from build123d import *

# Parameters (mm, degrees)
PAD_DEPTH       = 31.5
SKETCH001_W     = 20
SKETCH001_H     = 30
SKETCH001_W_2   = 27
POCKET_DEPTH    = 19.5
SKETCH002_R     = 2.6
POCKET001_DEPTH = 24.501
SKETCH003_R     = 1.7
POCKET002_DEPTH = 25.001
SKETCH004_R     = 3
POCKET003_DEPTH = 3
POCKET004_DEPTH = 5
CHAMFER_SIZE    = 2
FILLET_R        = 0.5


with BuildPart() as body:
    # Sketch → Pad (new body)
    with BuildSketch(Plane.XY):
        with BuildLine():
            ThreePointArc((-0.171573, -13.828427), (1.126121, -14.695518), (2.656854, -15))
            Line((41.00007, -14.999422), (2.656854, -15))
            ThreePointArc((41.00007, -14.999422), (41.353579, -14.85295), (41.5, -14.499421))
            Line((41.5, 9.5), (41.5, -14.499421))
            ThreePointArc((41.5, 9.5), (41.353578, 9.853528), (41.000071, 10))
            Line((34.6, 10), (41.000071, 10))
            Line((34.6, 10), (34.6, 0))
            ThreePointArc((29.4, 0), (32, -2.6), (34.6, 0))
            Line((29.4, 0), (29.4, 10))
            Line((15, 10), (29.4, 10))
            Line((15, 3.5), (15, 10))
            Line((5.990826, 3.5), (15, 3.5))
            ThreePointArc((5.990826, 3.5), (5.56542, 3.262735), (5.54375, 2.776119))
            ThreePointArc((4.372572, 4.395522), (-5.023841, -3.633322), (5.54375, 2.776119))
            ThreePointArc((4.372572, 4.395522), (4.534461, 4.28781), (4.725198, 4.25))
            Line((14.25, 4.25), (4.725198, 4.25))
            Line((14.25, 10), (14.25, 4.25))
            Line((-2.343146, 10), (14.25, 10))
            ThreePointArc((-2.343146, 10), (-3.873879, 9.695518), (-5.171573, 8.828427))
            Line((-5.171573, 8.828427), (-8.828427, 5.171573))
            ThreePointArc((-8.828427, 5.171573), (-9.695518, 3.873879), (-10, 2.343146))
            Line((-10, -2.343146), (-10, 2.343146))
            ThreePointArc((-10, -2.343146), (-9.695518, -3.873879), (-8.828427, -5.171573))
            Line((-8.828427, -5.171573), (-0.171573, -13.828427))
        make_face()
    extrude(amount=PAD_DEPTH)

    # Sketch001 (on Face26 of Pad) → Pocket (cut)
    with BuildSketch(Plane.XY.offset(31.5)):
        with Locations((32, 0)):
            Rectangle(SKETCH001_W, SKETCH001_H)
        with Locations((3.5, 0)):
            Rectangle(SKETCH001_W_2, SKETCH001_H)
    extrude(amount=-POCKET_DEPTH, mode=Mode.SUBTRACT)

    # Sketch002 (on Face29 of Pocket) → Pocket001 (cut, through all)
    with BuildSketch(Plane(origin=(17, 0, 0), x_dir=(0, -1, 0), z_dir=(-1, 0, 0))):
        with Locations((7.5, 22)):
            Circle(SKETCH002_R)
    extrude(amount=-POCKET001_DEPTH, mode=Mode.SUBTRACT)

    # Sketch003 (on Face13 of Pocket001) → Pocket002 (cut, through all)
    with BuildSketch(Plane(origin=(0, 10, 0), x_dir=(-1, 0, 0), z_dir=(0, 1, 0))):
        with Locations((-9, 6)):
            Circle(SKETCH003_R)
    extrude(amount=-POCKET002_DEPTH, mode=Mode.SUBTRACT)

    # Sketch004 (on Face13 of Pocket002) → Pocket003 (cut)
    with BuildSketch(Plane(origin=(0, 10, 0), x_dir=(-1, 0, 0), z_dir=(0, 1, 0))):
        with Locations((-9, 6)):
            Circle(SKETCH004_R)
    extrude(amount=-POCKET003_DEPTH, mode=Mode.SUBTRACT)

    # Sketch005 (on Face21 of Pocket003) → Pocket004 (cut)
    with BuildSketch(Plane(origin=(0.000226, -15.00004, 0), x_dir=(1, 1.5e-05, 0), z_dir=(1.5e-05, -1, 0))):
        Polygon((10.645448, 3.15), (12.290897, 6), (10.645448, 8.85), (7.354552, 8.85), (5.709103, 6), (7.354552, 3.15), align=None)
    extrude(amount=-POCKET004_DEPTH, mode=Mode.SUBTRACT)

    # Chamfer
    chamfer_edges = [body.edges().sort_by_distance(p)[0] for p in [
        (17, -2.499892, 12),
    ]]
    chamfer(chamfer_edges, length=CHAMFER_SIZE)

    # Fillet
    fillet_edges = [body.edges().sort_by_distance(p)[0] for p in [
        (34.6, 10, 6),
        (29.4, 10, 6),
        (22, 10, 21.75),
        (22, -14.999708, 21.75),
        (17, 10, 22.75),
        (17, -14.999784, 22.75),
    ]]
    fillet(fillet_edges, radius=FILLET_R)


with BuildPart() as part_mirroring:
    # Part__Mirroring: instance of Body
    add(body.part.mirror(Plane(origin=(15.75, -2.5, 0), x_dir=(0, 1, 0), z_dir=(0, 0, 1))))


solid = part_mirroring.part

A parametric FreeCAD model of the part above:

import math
import FreeCAD as App
import Part
import Sketcher
from FreeCAD import Vector
Q = App.Units.Quantity


def edges_at(feature, points):
    """Names of the edges that pass closest to the given points."""
    edges = feature.Shape.Edges
    near = lambda p: min(range(len(edges)), key=lambda i: edges[i].distToShape(Part.Vertex(*p))[0])
    return sorted({f"Edge{near(p) + 1}" for p in points})

doc = App.newDocument("Part")
body = doc.addObject("PartDesign::Body", "Body")

sketch1 = doc.addObject("Sketcher::SketchObject", "Sketch")
body.addObject(sketch1)
sketch1.AttachmentSupport = (doc.XY_Plane, [""])
sketch1.MapMode = "FlatFace"
sketch1.addGeometry(Part.ArcOfCircle(Part.Circle(Vector(2.66, -11, 0), Vector(0, 0, 1), 4), math.radians(-135), math.radians(-90)), False)
sketch1.addGeometry(Part.LineSegment(Vector(2.66, -15, 0), Vector(41, -15, 0)), False)
sketch1.addGeometry(Part.ArcOfCircle(Part.Circle(Vector(41, -14.5, 0), Vector(0, 0, 1), 0.5), math.radians(-90), math.radians(0)), False)
sketch1.addGeometry(Part.LineSegment(Vector(41.5, -14.5, 0), Vector(41.5, 9.5, 0)), False)
sketch1.addGeometry(Part.ArcOfCircle(Part.Circle(Vector(41, 9.5, 0), Vector(0, 0, 1), 0.5), math.radians(0), math.radians(90)), False)
sketch1.addGeometry(Part.LineSegment(Vector(41, 10, 0), Vector(34.6, 10, 0)), False)
sketch1.addGeometry(Part.LineSegment(Vector(34.6, 10, 0), Vector(34.6, 0, 0)), False)
sketch1.addGeometry(Part.ArcOfCircle(Part.Circle(Vector(32, 0, 0), Vector(0, 0, 1), 2.6), math.radians(180), math.radians(360)), False)
sketch1.addGeometry(Part.LineSegment(Vector(29.4, 0, 0), Vector(29.4, 10, 0)), False)
sketch1.addGeometry(Part.LineSegment(Vector(29.4, 10, 0), Vector(15, 10, 0)), False)
sketch1.addGeometry(Part.LineSegment(Vector(15, 10, 0), Vector(15, 3.5, 0)), False)
sketch1.addGeometry(Part.LineSegment(Vector(15, 3.5, 0), Vector(5.99, 3.5, 0)), False)
sketch1.addGeometry(Part.ArcOfCircle(Part.Circle(Vector(5.99, 3, 0), Vector(0, 0, 1), 0.5), math.radians(90), math.radians(207)), False)
sketch1.addGeometry(Part.ArcOfCircle(Part.Circle(Vector(0, 0, 0), Vector(0, 0, 1), 6.2), math.radians(45), math.radians(387)), False)
sketch1.addGeometry(Part.ArcOfCircle(Part.Circle(Vector(4.73, 4.75, 0), Vector(0, 0, 1), 0.5), math.radians(-135), math.radians(-90)), False)
sketch1.addGeometry(Part.LineSegment(Vector(4.73, 4.25, 0), Vector(14.25, 4.25, 0)), False)
sketch1.addGeometry(Part.LineSegment(Vector(14.25, 4.25, 0), Vector(14.25, 10, 0)), False)
sketch1.addGeometry(Part.LineSegment(Vector(14.25, 10, 0), Vector(-2.34, 10, 0)), False)
sketch1.addGeometry(Part.ArcOfCircle(Part.Circle(Vector(-2.34, 6, 0), Vector(0, 0, 1), 4), math.radians(90), math.radians(135)), False)
sketch1.addGeometry(Part.LineSegment(Vector(-5.17, 8.83, 0), Vector(-8.83, 5.17, 0)), False)
sketch1.addGeometry(Part.ArcOfCircle(Part.Circle(Vector(-6, 2.34, 0), Vector(0, 0, 1), 4), math.radians(135), math.radians(180)), False)
sketch1.addGeometry(Part.LineSegment(Vector(-10, 2.34, 0), Vector(-10, -2.34, 0)), False)
sketch1.addGeometry(Part.ArcOfCircle(Part.Circle(Vector(-6, -2.34, 0), Vector(0, 0, 1), 4), math.radians(-180), math.radians(-135)), False)
sketch1.addGeometry(Part.LineSegment(Vector(-8.83, -5.17, 0), Vector(-0.17, -13.83, 0)), False)
sketch1.addConstraint(Sketcher.Constraint("Coincident", 0, 2, 1, 1))
sketch1.addConstraint(Sketcher.Constraint("Coincident", 1, 2, 2, 1))
sketch1.addConstraint(Sketcher.Constraint("Coincident", 2, 2, 3, 1))
sketch1.addConstraint(Sketcher.Constraint("Coincident", 3, 2, 4, 1))
sketch1.addConstraint(Sketcher.Constraint("Coincident", 4, 2, 5, 1))
sketch1.addConstraint(Sketcher.Constraint("Coincident", 5, 2, 6, 1))
sketch1.addConstraint(Sketcher.Constraint("Tangent", 6, 2, 7, 2))
sketch1.addConstraint(Sketcher.Constraint("Tangent", 7, 1, 8, 1))
sketch1.addConstraint(Sketcher.Constraint("Coincident", 8, 2, 9, 1))
sketch1.addConstraint(Sketcher.Constraint("Coincident", 9, 2, 10, 1))
sketch1.addConstraint(Sketcher.Constraint("Coincident", 10, 2, 11, 1))
sketch1.addConstraint(Sketcher.Constraint("Tangent", 11, 2, 12, 1))
sketch1.addConstraint(Sketcher.Constraint("Tangent", 12, 2, 13, 2))
sketch1.addConstraint(Sketcher.Constraint("Coincident", 13, 1, 14, 1))
sketch1.addConstraint(Sketcher.Constraint("Coincident", 14, 2, 15, 1))
sketch1.addConstraint(Sketcher.Constraint("Coincident", 15, 2, 16, 1))
sketch1.addConstraint(Sketcher.Constraint("Coincident", 16, 2, 17, 1))
sketch1.addConstraint(Sketcher.Constraint("Tangent", 17, 2, 18, 1))
sketch1.addConstraint(Sketcher.Constraint("Tangent", 18, 2, 19, 1))
sketch1.addConstraint(Sketcher.Constraint("Tangent", 19, 2, 20, 1))
sketch1.addConstraint(Sketcher.Constraint("Tangent", 20, 2, 21, 1))
sketch1.addConstraint(Sketcher.Constraint("Tangent", 21, 2, 22, 1))
sketch1.addConstraint(Sketcher.Constraint("Tangent", 22, 2, 23, 1))
sketch1.addConstraint(Sketcher.Constraint("Tangent", 23, 2, 0, 1))
sketch1.addConstraint(Sketcher.Constraint("Vertical", 3))
sketch1.addConstraint(Sketcher.Constraint("Horizontal", 5))
sketch1.addConstraint(Sketcher.Constraint("Vertical", 6))
sketch1.addConstraint(Sketcher.Constraint("Vertical", 8))
sketch1.addConstraint(Sketcher.Constraint("Horizontal", 9))
sketch1.addConstraint(Sketcher.Constraint("Vertical", 10))
sketch1.addConstraint(Sketcher.Constraint("Horizontal", 11))
sketch1.addConstraint(Sketcher.Constraint("Horizontal", 15))
sketch1.addConstraint(Sketcher.Constraint("Vertical", 16))
sketch1.addConstraint(Sketcher.Constraint("Horizontal", 17))
sketch1.addConstraint(Sketcher.Constraint("Vertical", 21))
sketch1.addConstraint(Sketcher.Constraint("Coincident", 13, 3, -1, 1))
sketch1.addConstraint(Sketcher.Constraint("Equal", 2, 4))
sketch1.addConstraint(Sketcher.Constraint("Equal", 4, 12))
sketch1.addConstraint(Sketcher.Constraint("Equal", 0, 18))
sketch1.addConstraint(Sketcher.Constraint("Equal", 18, 20))
sketch1.addConstraint(Sketcher.Constraint("Equal", 20, 22))
sketch1.addConstraint(Sketcher.Constraint("Symmetric", 19, 2, 22, 2, -1))
sketch1.addConstraint(Sketcher.Constraint("PointOnObject", 7, 3, -1))
sketch1.addConstraint(Sketcher.Constraint("Perpendicular", 19, 23))
sketch1.addConstraint(Sketcher.Constraint("Horizontal", 4, 3, 3, 2))
sketch1.addConstraint(Sketcher.Constraint("Horizontal", 5, 2, 8, 2))
sketch1.addConstraint(Sketcher.Constraint("Horizontal", 9, 2, 16, 2))
sketch1.addConstraint(Sketcher.Constraint("Vertical", 1, 2, 4, 2))
sketch1.addConstraint(Sketcher.Constraint("Radius", 2, 0.5))
sketch1.addConstraint(Sketcher.Constraint("Radius", 7, 2.6))
sketch1.addConstraint(Sketcher.Constraint("Radius", 13, 6.2))
sketch1.addConstraint(Sketcher.Constraint("DistanceY", 6, 2, 6, 1, 10.0))
sketch1.addConstraint(Sketcher.Constraint("DistanceX", 9, 2, 9, 1, 14.4))
sketch1.addConstraint(Sketcher.Constraint("DistanceY", 10, 2, 10, 1, 6.5))
sketch1.addConstraint(Sketcher.Constraint("DistanceX", -1, 1, 2, 3, 41.0))
sketch1.addConstraint(Sketcher.Constraint("DistanceX", -1, 1, 7, 3, 32.0))
sketch1.addConstraint(Sketcher.Constraint("DistanceY", 0, 2, -1, 1, 15.0))
sketch1.addConstraint(Sketcher.Constraint("DistanceX", 20, 2, -1, 1, 10.0))
sketch1.addConstraint(Sketcher.Constraint("DistanceY", 16, 1, 16, 2, 5.75))
sketch1.addConstraint(Sketcher.Constraint("DistanceY", 1, 2, 2, 2, 0.500001))
sketch1.addConstraint(Sketcher.Constraint("DistanceX", -1, 1, 15, 2, 14.25))
sketch1.addConstraint(Sketcher.Constraint("DistanceY", 14, 3, 18, 3, 1.25))
sketch1.addConstraint(Sketcher.Constraint("Radius", 0, 4.000004))
sketch1.addConstraint(Sketcher.Constraint("DistanceX", 5, 2, 5, 1, 6.400071))
sketch1.addConstraint(Sketcher.Constraint("DistanceY", 3, 1, 3, 2, 23.999421))
sketch1.addConstraint(Sketcher.Constraint("Distance", 23, 12.24264))
sketch1.addConstraint(Sketcher.Constraint("DistanceX", 15, 1, 15, 2, 9.524802))
sketch1.addConstraint(Sketcher.Constraint("DistanceX", 22, 3, 0, 2, 8.65685))
sketch1.addConstraint(Sketcher.Constraint("DistanceX", 13, 1, 12, 2, 1.171178))
pad1 = doc.addObject("PartDesign::Pad", "Pad")
body.addObject(pad1)
pad1.Profile = sketch1
pad1.Length = 31.5

sketch2 = doc.addObject("Sketcher::SketchObject", "Sketch001")
body.addObject(sketch2)
sketch2.AttachmentSupport = (doc.XY_Plane, [""])
sketch2.MapMode = "FlatFace"
sketch2.AttachmentOffset = App.Placement(Vector(0, 0, 31.5), App.Rotation())
sketch2.addGeometry(Part.LineSegment(Vector(22, 15, 0), Vector(22, -15, 0)), False)
sketch2.addGeometry(Part.LineSegment(Vector(22, -15, 0), Vector(42, -15, 0)), False)
sketch2.addGeometry(Part.LineSegment(Vector(42, -15, 0), Vector(42, 15, 0)), False)
sketch2.addGeometry(Part.LineSegment(Vector(42, 15, 0), Vector(22, 15, 0)), False)
sketch2.addGeometry(Part.LineSegment(Vector(-10, 15, 0), Vector(-10, -15, 0)), False)
sketch2.addGeometry(Part.LineSegment(Vector(-10, -15, 0), Vector(17, -15, 0)), False)
sketch2.addGeometry(Part.LineSegment(Vector(17, -15, 0), Vector(17, 15, 0)), False)
sketch2.addGeometry(Part.LineSegment(Vector(17, 15, 0), Vector(-10, 15, 0)), False)
sketch2.addConstraint(Sketcher.Constraint("Coincident", 0, 2, 1, 1))
sketch2.addConstraint(Sketcher.Constraint("Coincident", 1, 2, 2, 1))
sketch2.addConstraint(Sketcher.Constraint("Coincident", 2, 2, 3, 1))
sketch2.addConstraint(Sketcher.Constraint("Coincident", 3, 2, 0, 1))
sketch2.addConstraint(Sketcher.Constraint("Coincident", 4, 2, 5, 1))
sketch2.addConstraint(Sketcher.Constraint("Coincident", 5, 2, 6, 1))
sketch2.addConstraint(Sketcher.Constraint("Coincident", 6, 2, 7, 1))
sketch2.addConstraint(Sketcher.Constraint("Coincident", 7, 2, 4, 1))
sketch2.addConstraint(Sketcher.Constraint("Vertical", 0))
sketch2.addConstraint(Sketcher.Constraint("Horizontal", 1))
sketch2.addConstraint(Sketcher.Constraint("Vertical", 2))
sketch2.addConstraint(Sketcher.Constraint("Horizontal", 3))
sketch2.addConstraint(Sketcher.Constraint("Vertical", 4))
sketch2.addConstraint(Sketcher.Constraint("Horizontal", 5))
sketch2.addConstraint(Sketcher.Constraint("Vertical", 6))
sketch2.addConstraint(Sketcher.Constraint("Horizontal", 7))
sketch2.addConstraint(Sketcher.Constraint("Horizontal", 1, 2, 4, 2))
sketch2.addConstraint(Sketcher.Constraint("Horizontal", 3, 2, 6, 2))
sketch2.addConstraint(Sketcher.Constraint("DistanceX", 1, 1, 1, 2, 20.0))
sketch2.addConstraint(Sketcher.Constraint("DistanceX", 5, 1, 5, 2, 27.0))
sketch2.addConstraint(Sketcher.Constraint("DistanceY", 0, 2, 0, 1, 30.0))
sketch2.addConstraint(Sketcher.Constraint("DistanceX", -1, 1, 0, 2, 22.0))
sketch2.addConstraint(Sketcher.Constraint("DistanceY", 0, 2, -1, 1, 15.0))
sketch2.addConstraint(Sketcher.Constraint("DistanceX", 4, 2, -1, 1, 10.0))
pocket1 = doc.addObject("PartDesign::Pocket", "Pocket")
body.addObject(pocket1)
pocket1.Profile = sketch2
pocket1.Length = 19.5

sketch3 = doc.addObject("Sketcher::SketchObject", "Sketch002")
body.addObject(sketch3)
sketch3.AttachmentSupport = (doc.YZ_Plane, [""])
sketch3.MapMode = "FlatFace"
sketch3.AttachmentOffset = App.Placement(Vector(0, 0, 17), App.Rotation())
sketch3.addGeometry(Part.Circle(Vector(-7.5, 22, 0), Vector(0, 0, 1), 2.6), False)
sketch3.addConstraint(Sketcher.Constraint("Diameter", 0, 5.2))
sketch3.addConstraint(Sketcher.Constraint("DistanceY", -1, 1, 0, 3, 22.0))
sketch3.addConstraint(Sketcher.Constraint("DistanceX", 0, 3, -1, 1, 7.5))
pocket2 = doc.addObject("PartDesign::Pocket", "Pocket001")
body.addObject(pocket2)
pocket2.Profile = sketch3
pocket2.Type = "ThroughAll"
pocket2.Reversed = True

sketch4 = doc.addObject("Sketcher::SketchObject", "Sketch003")
body.addObject(sketch4)
sketch4.AttachmentSupport = (doc.XZ_Plane, [""])
sketch4.MapMode = "FlatFace"
sketch4.AttachmentOffset = App.Placement(Vector(0, 0, -10), App.Rotation())
sketch4.addGeometry(Part.Circle(Vector(9, 6, 0), Vector(0, 0, 1), 1.7), False)
sketch4.addConstraint(Sketcher.Constraint("Diameter", 0, 3.4))
sketch4.addConstraint(Sketcher.Constraint("DistanceX", -1, 1, 0, 3, 9.0))
sketch4.addConstraint(Sketcher.Constraint("DistanceY", -1, 1, 0, 3, 6.0))
pocket3 = doc.addObject("PartDesign::Pocket", "Pocket002")
body.addObject(pocket3)
pocket3.Profile = sketch4
pocket3.Type = "ThroughAll"
pocket3.Reversed = True

sketch5 = doc.addObject("Sketcher::SketchObject", "Sketch004")
body.addObject(sketch5)
sketch5.AttachmentSupport = (doc.XZ_Plane, [""])
sketch5.MapMode = "FlatFace"
sketch5.AttachmentOffset = App.Placement(Vector(0, 0, -10), App.Rotation())
sketch5.addGeometry(Part.Circle(Vector(9, 6, 0), Vector(0, 0, 1), 3), False)
sketch5.addConstraint(Sketcher.Constraint("Diameter", 0, 6.0))
sketch5.addConstraint(Sketcher.Constraint("DistanceX", -1, 1, 0, 3, 9.0))
sketch5.addConstraint(Sketcher.Constraint("DistanceY", -1, 1, 0, 3, 6.0))
pocket4 = doc.addObject("PartDesign::Pocket", "Pocket003")
body.addObject(pocket4)
pocket4.Profile = sketch5
pocket4.Length = 3
pocket4.Reversed = True

sketch6 = doc.addObject("Sketcher::SketchObject", "Sketch005")
body.addObject(sketch6)
sketch6.AttachmentSupport = (doc.XZ_Plane, [""])
sketch6.MapMode = "FlatFace"
sketch6.AttachmentOffset = App.Placement(Vector(0, 0, 15.00004), App.Rotation())
sketch6.addGeometry(Part.LineSegment(Vector(10.6, 3.2, 0), Vector(12.3, 6, 0)), False)
sketch6.addGeometry(Part.LineSegment(Vector(12.3, 6, 0), Vector(10.6, 8.9, 0)), False)
sketch6.addGeometry(Part.LineSegment(Vector(10.6, 8.9, 0), Vector(7.4, 8.9, 0)), False)
sketch6.addGeometry(Part.LineSegment(Vector(7.4, 8.9, 0), Vector(5.7, 6, 0)), False)
sketch6.addGeometry(Part.LineSegment(Vector(5.7, 6, 0), Vector(7.4, 3.2, 0)), False)
sketch6.addGeometry(Part.LineSegment(Vector(7.4, 3.2, 0), Vector(10.6, 3.2, 0)), False)
sketch6.addConstraint(Sketcher.Constraint("Coincident", 0, 2, 1, 1))
sketch6.addConstraint(Sketcher.Constraint("Coincident", 1, 2, 2, 1))
sketch6.addConstraint(Sketcher.Constraint("Coincident", 2, 2, 3, 1))
sketch6.addConstraint(Sketcher.Constraint("Coincident", 3, 2, 4, 1))
sketch6.addConstraint(Sketcher.Constraint("Coincident", 4, 2, 5, 1))
sketch6.addConstraint(Sketcher.Constraint("Coincident", 5, 2, 0, 1))
sketch6.addConstraint(Sketcher.Constraint("Horizontal", 2))
sketch6.addConstraint(Sketcher.Constraint("Horizontal", 5))
sketch6.addConstraint(Sketcher.Constraint("Parallel", 0, 3))
sketch6.addConstraint(Sketcher.Constraint("Parallel", 1, 4))
sketch6.addConstraint(Sketcher.Constraint("Horizontal", 0, 2, 3, 2))
sketch6.addConstraint(Sketcher.Constraint("Vertical", 2, 2, 4, 2))
sketch6.addConstraint(Sketcher.Constraint("Vertical", 1, 2, 5, 2))
sketch6.addConstraint(Sketcher.Constraint("Angle", 0, Q("59.999989 deg")))
sketch6.addConstraint(Sketcher.Constraint("DistanceY", -1, 1, 0, 2, 6.0))
sketch6.addConstraint(Sketcher.Constraint("DistanceY", 4, 2, 2, 2, 5.7))
sketch6.addConstraint(Sketcher.Constraint("DistanceX", 2, 2, 2, 1, 3.290896))
sketch6.addConstraint(Sketcher.Constraint("DistanceX", -1, 1, 3, 2, 5.709329))
pocket5 = doc.addObject("PartDesign::Pocket", "Pocket004")
body.addObject(pocket5)
pocket5.Profile = sketch6
pocket5.Length = 5
doc.recompute()

chamfer = doc.addObject("PartDesign::Chamfer", "Chamfer")
body.addObject(chamfer)
chamfer.Base = (pocket5, edges_at(pocket5, [(17, -2.5, 12)]))
chamfer.Size = 2
doc.recompute()

fillet = doc.addObject("PartDesign::Fillet", "Fillet")
body.addObject(fillet)
fillet.Base = (chamfer, edges_at(chamfer, [
    (34.6, 10, 6),
    (29.4, 10, 6),
    (22, 10, 21.75),
    (22, -15, 21.75),
    (17, 10, 22.75),
    (17, -15, 22.75),
]))
fillet.Radius = 0.5
body2 = doc.addObject("PartDesign::Body", "Body001")
doc.recompute()

mirroring = doc.addObject("Part::Mirroring", "Mirroring")
mirroring.Source = body
mirroring.Base = Vector(15.75, -2.5, 0)
mirroring.Normal = Vector(0, 0, 1)
body2.BaseFeature = mirroring
doc.recompute()
body.Visibility = False
mirroring.Visibility = False

doc.recompute()
